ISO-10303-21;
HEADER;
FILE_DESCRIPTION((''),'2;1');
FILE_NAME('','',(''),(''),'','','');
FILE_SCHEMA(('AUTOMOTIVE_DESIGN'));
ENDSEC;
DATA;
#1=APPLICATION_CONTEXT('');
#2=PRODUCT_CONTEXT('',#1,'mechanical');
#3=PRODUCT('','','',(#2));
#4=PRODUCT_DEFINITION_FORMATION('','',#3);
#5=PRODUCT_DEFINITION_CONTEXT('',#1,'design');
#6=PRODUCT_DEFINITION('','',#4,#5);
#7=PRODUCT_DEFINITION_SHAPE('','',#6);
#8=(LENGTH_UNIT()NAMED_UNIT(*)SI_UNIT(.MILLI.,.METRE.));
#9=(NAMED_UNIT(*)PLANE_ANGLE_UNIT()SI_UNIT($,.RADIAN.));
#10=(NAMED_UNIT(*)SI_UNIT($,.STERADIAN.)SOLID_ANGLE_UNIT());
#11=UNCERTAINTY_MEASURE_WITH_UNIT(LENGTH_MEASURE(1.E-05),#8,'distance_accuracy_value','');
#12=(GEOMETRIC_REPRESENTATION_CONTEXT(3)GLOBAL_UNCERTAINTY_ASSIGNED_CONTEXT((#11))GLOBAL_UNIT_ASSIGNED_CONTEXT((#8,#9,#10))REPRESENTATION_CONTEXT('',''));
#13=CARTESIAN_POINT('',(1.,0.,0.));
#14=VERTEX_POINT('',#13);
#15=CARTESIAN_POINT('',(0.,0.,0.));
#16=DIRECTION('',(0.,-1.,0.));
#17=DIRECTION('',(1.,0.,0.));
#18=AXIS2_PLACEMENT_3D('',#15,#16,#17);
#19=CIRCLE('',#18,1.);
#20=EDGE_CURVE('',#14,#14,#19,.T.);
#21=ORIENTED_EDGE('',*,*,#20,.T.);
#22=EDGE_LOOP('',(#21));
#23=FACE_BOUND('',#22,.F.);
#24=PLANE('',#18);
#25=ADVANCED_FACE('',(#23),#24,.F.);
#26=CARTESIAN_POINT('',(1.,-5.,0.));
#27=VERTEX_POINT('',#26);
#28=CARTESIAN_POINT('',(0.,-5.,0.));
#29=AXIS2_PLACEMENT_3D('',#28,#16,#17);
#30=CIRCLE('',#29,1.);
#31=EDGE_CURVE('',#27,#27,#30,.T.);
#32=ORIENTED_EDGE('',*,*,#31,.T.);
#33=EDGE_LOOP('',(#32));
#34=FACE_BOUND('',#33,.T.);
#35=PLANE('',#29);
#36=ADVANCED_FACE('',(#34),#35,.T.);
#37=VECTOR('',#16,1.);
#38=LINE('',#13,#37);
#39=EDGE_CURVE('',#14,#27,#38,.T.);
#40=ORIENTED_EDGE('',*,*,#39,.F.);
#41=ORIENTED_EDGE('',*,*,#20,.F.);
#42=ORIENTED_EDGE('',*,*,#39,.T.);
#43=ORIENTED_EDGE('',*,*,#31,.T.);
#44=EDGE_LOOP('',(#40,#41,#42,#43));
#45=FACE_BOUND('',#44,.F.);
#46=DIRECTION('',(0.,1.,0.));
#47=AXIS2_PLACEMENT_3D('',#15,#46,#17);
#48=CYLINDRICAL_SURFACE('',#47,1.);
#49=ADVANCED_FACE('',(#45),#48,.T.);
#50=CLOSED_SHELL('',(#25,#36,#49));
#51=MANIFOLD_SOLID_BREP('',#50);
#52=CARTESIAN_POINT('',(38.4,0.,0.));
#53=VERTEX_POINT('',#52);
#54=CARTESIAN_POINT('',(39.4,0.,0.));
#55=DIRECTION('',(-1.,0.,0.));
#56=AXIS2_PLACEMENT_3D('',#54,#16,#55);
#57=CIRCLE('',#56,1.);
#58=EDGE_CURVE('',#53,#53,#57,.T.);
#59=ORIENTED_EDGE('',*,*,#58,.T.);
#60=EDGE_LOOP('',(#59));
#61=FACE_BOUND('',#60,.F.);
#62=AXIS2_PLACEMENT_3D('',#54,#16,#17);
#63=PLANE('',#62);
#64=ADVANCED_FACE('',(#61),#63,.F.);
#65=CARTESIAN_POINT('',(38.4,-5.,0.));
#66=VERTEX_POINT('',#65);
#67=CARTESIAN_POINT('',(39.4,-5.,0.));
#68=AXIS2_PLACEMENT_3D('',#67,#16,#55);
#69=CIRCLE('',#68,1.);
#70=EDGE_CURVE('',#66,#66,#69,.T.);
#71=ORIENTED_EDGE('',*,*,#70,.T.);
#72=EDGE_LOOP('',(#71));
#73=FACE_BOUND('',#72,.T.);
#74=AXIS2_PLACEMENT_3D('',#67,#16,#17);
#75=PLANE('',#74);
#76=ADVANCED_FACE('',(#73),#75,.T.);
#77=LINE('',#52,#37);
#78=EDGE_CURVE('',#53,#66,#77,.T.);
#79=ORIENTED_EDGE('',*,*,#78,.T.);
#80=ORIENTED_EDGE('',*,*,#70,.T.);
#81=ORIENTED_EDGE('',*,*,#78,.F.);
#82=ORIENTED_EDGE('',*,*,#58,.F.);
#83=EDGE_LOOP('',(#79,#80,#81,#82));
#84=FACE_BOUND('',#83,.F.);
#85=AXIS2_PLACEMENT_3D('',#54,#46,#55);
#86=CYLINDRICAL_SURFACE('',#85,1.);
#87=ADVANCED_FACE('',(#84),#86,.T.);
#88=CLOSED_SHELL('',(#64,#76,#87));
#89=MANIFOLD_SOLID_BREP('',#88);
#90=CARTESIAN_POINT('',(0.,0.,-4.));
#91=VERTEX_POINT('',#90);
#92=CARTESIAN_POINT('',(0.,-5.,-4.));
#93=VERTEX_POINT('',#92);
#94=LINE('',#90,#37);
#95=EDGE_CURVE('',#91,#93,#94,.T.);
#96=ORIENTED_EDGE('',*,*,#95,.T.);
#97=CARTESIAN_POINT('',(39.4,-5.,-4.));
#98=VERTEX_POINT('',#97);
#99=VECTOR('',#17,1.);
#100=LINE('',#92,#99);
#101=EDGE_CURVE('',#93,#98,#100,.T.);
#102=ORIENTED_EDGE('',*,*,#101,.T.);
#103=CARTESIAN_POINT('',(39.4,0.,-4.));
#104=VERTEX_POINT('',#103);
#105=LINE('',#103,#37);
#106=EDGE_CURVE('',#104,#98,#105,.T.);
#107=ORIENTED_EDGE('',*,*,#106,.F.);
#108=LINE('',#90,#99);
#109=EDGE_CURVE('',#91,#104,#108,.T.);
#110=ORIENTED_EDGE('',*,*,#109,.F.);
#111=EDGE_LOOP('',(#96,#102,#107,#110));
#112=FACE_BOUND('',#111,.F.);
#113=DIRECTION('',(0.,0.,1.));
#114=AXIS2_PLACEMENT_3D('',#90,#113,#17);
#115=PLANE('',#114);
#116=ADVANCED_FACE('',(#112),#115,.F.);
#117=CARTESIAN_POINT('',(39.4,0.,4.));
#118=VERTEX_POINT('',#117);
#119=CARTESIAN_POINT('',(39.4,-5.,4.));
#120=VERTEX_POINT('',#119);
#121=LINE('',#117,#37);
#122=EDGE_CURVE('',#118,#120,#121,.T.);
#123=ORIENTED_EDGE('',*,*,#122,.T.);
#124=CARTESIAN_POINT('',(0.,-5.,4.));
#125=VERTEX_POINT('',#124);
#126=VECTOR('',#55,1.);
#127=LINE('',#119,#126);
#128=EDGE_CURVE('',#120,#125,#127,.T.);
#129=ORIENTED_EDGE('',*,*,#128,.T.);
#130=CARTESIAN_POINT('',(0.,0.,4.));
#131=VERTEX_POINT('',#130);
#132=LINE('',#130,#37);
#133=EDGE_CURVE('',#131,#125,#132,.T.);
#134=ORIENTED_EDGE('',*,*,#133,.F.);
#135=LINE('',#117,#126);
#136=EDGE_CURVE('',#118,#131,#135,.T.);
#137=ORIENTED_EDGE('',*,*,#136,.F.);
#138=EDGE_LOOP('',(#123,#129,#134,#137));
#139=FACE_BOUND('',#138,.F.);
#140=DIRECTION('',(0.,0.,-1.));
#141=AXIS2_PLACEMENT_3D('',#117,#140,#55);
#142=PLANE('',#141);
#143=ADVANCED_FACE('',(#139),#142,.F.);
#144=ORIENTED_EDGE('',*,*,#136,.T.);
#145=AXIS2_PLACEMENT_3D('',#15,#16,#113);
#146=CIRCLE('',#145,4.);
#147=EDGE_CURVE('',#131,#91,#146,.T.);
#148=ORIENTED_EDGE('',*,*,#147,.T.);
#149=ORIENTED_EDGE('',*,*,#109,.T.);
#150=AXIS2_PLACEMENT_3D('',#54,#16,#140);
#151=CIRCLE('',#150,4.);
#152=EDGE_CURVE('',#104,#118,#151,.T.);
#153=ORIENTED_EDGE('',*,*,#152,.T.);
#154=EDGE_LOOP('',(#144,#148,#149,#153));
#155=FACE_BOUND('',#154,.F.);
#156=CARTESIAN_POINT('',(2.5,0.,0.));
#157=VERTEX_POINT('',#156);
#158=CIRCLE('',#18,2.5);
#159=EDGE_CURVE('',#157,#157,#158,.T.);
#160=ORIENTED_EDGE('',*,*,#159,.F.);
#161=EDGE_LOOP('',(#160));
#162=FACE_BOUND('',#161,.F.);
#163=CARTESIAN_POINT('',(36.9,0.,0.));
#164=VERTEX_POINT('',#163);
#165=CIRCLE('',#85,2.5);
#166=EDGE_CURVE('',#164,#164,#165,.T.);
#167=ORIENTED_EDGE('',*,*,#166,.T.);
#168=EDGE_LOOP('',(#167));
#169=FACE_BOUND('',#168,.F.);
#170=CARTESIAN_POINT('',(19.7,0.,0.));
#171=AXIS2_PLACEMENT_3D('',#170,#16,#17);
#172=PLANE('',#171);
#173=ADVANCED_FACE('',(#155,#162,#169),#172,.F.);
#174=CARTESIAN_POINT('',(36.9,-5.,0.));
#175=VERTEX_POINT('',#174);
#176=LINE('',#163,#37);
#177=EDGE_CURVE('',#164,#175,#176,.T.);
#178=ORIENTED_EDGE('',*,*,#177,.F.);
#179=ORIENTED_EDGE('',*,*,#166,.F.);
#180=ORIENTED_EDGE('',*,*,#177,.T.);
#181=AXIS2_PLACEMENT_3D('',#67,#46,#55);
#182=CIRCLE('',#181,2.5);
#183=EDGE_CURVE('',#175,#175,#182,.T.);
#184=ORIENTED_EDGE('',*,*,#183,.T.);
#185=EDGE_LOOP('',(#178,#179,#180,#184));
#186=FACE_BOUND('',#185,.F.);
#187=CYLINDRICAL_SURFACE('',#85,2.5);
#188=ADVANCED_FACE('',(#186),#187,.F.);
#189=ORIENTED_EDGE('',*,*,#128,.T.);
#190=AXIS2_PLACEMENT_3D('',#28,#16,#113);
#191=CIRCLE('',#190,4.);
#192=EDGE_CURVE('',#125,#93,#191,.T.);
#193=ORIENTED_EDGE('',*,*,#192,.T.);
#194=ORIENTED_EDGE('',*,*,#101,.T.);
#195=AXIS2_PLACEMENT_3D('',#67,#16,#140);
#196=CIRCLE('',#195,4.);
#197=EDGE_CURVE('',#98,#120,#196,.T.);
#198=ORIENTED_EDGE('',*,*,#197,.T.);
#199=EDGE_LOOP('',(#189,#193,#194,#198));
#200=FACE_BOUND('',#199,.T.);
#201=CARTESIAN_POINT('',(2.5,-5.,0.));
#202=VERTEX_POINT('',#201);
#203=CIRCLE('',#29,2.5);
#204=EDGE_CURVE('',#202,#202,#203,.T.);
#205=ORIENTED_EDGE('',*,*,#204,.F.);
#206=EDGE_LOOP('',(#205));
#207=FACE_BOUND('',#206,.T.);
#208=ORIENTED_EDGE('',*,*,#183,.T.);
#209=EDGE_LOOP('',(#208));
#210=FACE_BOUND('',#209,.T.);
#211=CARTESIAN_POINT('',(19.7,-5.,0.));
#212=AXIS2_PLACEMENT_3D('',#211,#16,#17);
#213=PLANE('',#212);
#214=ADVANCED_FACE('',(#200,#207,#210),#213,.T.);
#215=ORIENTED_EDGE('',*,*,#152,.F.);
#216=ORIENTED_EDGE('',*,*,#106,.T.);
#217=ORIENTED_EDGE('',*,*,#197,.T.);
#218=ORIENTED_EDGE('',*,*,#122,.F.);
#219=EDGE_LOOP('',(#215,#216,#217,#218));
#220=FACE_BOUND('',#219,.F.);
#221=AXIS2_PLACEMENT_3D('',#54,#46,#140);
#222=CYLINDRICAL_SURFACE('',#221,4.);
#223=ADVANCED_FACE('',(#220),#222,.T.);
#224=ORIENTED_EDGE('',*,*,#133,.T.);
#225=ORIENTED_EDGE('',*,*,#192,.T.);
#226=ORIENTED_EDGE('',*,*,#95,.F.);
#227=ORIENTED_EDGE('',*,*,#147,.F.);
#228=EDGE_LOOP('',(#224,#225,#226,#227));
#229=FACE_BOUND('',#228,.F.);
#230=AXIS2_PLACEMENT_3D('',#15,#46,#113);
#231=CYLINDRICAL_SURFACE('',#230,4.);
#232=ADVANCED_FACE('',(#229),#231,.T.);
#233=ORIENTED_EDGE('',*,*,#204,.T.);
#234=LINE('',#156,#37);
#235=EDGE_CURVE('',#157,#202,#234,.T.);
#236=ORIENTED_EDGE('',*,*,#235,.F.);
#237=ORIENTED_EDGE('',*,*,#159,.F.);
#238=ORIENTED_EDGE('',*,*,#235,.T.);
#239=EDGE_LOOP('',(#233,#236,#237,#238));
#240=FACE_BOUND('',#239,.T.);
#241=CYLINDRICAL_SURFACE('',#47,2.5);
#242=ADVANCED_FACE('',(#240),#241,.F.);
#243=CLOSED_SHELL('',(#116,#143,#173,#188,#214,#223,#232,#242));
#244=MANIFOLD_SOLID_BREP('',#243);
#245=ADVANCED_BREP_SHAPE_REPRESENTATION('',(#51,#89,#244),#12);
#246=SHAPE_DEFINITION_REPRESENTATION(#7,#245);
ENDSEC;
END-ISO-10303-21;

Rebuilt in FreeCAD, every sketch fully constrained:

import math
import FreeCAD as App
import Part
import Sketcher
from FreeCAD import Vector

doc = App.newDocument("Part")
body = doc.addObject("PartDesign::Body", "Body")

# Sketch on XZ plane
sketch1 = body.newObject("Sketcher::SketchObject", "Sketch")
sketch1.AttachmentSupport = (doc.getObject("XZ_Plane"), [""])
sketch1.MapMode = "FlatFace"
sketch1.addGeometry(Part.Circle(Vector(0, 0, 0), Vector(0, 0, 1), 1), False)
sketch1.addConstraint([
    Sketcher.Constraint("Coincident", 0, 3, -1, 1),
    Sketcher.Constraint("Diameter", 0, 2.0),
])
pad1 = body.newObject("PartDesign::Pad", "Pad")
pad1.Profile = sketch1
pad1.Length = 5
body2 = doc.addObject("PartDesign::Body", "Body001")

# Sketch on XZ plane
sketch2 = body2.newObject("Sketcher::SketchObject", "Sketch001")
sketch2.AttachmentSupport = (doc.getObject("XZ_Plane001"), [""])
sketch2.MapMode = "FlatFace"
sketch2.addGeometry([
    Part.LineSegment(Vector(39.4, 4, 0), Vector(0, 4, 0)),  # 0
    Part.ArcOfCircle(Part.Circle(Vector(0, 0, 0), Vector(0, 0, 1), 4), math.radians(90), math.radians(270)),  # 1
    Part.LineSegment(Vector(0, -4, 0), Vector(39.4, -4, 0)),  # 2
    Part.ArcOfCircle(Part.Circle(Vector(39.4, 0, 0), Vector(0, 0, 1), 4), math.radians(-90), math.radians(90)),  # 3
    Part.Circle(Vector(0, 0, 0), Vector(0, 0, 1), 2.5),  # 4
    Part.Circle(Vector(39.4, 0, 0), Vector(0, 0, 1), 2.5),  # 5
], False)
sketch2.addConstraint([
    Sketcher.Constraint("Tangent", 0, 2, 1, 1),
    Sketcher.Constraint("Tangent", 1, 2, 2, 1),
    Sketcher.Constraint("Tangent", 2, 2, 3, 1),
    Sketcher.Constraint("Tangent", 3, 2, 0, 1),
    Sketcher.Constraint("Horizontal", 0),
    Sketcher.Constraint("Horizontal", 2),
    Sketcher.Constraint("Coincident", 1, 3, -1, 1),
    Sketcher.Constraint("Coincident", 4, 3, -1, 1),
    Sketcher.Constraint("Coincident", 5, 3, 3, 3),
    Sketcher.Constraint("Equal", 4, 5),
    Sketcher.Constraint("Diameter", 4, 5.0),
    Sketcher.Constraint("Radius", 1, 4.0),
    Sketcher.Constraint("DistanceX", 0, 2, 0, 1, 39.4),
])
pad2 = body2.newObject("PartDesign::Pad", "Pad001")
pad2.Profile = sketch2
pad2.Length = 5
body3 = doc.addObject("PartDesign::Body", "Body002")

# Sketch on XZ plane
sketch3 = body3.newObject("Sketcher::SketchObject", "Sketch002")
sketch3.AttachmentSupport = (doc.getObject("XZ_Plane002"), [""])
sketch3.MapMode = "FlatFace"
sketch3.addGeometry(Part.Circle(Vector(39.4, 0, 0), Vector(0, 0, 1), 1), False)
sketch3.addConstraint([
    Sketcher.Constraint("PointOnObject", 0, 3, -1),
    Sketcher.Constraint("Diameter", 0, 2.0),
    Sketcher.Constraint("DistanceX", -1, 1, 0, 3, 39.4),
])
pad3 = body3.newObject("PartDesign::Pad", "Pad002")
pad3.Profile = sketch3
pad3.Length = 5

doc.recompute()
